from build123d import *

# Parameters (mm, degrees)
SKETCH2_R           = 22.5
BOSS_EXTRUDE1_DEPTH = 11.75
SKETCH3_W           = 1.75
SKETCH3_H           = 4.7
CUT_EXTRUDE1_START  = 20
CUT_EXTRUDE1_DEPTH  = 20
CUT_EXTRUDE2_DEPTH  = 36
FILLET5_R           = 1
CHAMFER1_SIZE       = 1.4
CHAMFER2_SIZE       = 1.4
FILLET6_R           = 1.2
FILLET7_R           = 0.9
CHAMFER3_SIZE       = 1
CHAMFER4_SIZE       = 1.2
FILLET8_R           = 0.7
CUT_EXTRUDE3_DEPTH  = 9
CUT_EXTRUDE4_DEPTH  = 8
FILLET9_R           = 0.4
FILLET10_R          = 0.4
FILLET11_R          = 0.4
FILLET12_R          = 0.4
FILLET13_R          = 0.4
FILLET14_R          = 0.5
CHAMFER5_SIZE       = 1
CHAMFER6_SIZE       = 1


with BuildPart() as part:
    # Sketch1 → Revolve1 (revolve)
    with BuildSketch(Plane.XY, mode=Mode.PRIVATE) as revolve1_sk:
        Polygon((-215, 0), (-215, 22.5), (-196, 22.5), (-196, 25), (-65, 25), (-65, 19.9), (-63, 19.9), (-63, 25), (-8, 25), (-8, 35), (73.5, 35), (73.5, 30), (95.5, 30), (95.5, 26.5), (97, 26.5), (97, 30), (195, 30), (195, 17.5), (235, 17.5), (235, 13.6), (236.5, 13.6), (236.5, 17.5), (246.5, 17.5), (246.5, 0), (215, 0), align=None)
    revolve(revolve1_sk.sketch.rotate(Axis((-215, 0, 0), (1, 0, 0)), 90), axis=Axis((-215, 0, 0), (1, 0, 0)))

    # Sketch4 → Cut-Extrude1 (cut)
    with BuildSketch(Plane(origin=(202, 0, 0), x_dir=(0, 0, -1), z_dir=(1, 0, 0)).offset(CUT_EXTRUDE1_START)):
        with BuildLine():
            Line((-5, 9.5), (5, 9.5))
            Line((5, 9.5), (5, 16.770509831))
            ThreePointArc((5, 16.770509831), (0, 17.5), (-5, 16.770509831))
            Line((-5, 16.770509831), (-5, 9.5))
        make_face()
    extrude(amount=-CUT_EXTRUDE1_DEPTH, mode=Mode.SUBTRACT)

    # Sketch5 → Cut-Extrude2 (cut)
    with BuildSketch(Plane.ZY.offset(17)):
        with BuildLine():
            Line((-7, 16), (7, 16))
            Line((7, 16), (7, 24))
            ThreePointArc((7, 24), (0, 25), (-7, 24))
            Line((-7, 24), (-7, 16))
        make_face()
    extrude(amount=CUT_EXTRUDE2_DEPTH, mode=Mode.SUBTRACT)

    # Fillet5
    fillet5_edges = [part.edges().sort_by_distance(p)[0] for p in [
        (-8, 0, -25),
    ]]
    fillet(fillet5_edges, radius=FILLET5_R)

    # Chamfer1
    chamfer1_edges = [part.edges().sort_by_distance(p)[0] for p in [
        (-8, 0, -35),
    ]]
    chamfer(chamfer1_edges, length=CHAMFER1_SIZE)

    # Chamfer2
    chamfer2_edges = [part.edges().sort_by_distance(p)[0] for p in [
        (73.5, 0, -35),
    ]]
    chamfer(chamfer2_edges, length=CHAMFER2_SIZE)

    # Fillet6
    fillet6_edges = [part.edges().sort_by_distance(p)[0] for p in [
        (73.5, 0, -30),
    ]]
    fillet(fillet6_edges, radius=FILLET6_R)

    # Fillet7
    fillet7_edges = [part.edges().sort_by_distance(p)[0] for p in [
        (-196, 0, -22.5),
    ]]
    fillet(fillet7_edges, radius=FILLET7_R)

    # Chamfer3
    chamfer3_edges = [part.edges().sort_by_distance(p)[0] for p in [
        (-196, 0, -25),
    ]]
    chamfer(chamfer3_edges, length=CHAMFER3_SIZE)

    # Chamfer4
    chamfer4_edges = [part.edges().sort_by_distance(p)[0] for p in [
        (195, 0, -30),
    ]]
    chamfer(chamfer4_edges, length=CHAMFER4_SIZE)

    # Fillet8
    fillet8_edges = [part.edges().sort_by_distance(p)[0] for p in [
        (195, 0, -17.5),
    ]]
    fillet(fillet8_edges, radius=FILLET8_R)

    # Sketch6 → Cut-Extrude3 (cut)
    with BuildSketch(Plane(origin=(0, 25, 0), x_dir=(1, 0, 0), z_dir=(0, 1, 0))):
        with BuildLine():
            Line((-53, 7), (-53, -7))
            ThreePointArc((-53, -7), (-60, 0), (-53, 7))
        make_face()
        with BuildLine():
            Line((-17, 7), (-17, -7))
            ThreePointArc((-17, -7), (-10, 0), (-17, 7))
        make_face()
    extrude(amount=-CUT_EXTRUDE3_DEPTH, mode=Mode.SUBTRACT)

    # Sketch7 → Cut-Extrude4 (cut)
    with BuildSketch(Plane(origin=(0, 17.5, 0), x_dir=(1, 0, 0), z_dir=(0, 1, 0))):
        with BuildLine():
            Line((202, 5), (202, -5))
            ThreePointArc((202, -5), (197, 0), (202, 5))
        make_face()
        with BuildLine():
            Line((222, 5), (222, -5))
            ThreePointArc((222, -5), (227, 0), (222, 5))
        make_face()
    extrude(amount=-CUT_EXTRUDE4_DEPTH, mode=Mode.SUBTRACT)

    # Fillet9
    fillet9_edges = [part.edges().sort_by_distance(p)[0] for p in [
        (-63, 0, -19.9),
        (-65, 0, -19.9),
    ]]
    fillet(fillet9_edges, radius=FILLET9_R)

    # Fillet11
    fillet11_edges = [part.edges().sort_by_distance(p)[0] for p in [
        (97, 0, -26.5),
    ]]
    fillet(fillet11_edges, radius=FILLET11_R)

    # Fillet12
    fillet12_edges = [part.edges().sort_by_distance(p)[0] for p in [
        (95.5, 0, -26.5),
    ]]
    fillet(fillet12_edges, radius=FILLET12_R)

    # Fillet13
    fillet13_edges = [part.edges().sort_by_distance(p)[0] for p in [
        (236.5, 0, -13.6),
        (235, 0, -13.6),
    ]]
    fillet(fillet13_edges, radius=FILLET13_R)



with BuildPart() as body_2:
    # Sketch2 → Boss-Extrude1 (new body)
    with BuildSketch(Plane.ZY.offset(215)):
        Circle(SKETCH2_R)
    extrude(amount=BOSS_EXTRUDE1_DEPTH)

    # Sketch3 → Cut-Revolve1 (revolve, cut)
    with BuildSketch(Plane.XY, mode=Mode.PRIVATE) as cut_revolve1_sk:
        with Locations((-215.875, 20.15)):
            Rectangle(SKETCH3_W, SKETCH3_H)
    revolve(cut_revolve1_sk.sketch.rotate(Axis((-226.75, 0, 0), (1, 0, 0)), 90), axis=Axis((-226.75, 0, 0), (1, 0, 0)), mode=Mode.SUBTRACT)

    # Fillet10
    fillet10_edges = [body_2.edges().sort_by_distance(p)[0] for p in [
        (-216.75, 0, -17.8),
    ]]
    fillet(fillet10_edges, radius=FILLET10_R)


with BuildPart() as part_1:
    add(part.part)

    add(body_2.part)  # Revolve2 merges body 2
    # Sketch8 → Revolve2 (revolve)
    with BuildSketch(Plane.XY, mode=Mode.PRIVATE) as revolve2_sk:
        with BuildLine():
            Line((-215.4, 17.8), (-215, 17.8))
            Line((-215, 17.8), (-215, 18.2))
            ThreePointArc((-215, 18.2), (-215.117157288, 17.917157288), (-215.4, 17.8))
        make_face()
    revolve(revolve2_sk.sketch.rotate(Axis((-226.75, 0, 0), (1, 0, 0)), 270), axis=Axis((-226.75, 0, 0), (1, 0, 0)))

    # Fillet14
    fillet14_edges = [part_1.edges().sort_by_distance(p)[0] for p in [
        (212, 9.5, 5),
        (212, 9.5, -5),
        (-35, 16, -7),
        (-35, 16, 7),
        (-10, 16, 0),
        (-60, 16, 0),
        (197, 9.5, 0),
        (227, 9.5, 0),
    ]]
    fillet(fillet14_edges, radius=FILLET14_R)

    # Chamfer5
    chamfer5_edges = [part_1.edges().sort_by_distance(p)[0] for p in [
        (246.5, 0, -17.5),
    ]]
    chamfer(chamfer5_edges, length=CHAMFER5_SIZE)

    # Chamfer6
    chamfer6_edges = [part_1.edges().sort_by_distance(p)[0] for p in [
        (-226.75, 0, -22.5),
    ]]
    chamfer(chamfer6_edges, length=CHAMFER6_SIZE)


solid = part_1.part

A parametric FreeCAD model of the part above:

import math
import FreeCAD as App
import Part
import Sketcher
Q = App.Units.Quantity


def edges_at(feature, points):
    """Names of the edges that pass closest to the given points."""
    edges = feature.Shape.Edges
    near = lambda p: min(range(len(edges)), key=lambda i: edges[i].distToShape(Part.Vertex(*p))[0])
    return sorted({f"Edge{near(p) + 1}" for p in points})

doc = App.newDocument("Part")
body = doc.addObject("PartDesign::Body", "Body")

sketch1 = body.newObject("Sketcher::SketchObject", "Sketch")
sketch1.AttachmentSupport = (doc.getObject("XY_Plane"), [""])
sketch1.MapMode = "FlatFace"
sketch1.addGeometry(Part.LineSegment(App.Vector(-215, 22.5, 0), App.Vector(-215, 0, 0)), False)
sketch1.addGeometry(Part.LineSegment(App.Vector(-215, 0, 0), App.Vector(246.5, 0, 0)), False)
sketch1.addGeometry(Part.LineSegment(App.Vector(246.5, 0, 0), App.Vector(246.5, 17.5, 0)), False)
sketch1.addGeometry(Part.LineSegment(App.Vector(246.5, 17.5, 0), App.Vector(236.5, 17.5, 0)), False)
sketch1.addGeometry(Part.LineSegment(App.Vector(236.5, 17.5, 0), App.Vector(236.5, 13.6, 0)), False)
sketch1.addGeometry(Part.LineSegment(App.Vector(236.5, 13.6, 0), App.Vector(235, 13.6, 0)), False)
sketch1.addGeometry(Part.LineSegment(App.Vector(235, 13.6, 0), App.Vector(235, 17.5, 0)), False)
sketch1.addGeometry(Part.LineSegment(App.Vector(235, 17.5, 0), App.Vector(195, 17.5, 0)), False)
sketch1.addGeometry(Part.LineSegment(App.Vector(195, 17.5, 0), App.Vector(195, 30, 0)), False)
sketch1.addGeometry(Part.LineSegment(App.Vector(195, 30, 0), App.Vector(97, 30, 0)), False)
sketch1.addGeometry(Part.LineSegment(App.Vector(97, 30, 0), App.Vector(97, 26.5, 0)), False)
sketch1.addGeometry(Part.LineSegment(App.Vector(97, 26.5, 0), App.Vector(95.5, 26.5, 0)), False)
sketch1.addGeometry(Part.LineSegment(App.Vector(95.5, 26.5, 0), App.Vector(95.5, 30, 0)), False)
sketch1.addGeometry(Part.LineSegment(App.Vector(95.5, 30, 0), App.Vector(73.5, 30, 0)), False)
sketch1.addGeometry(Part.LineSegment(App.Vector(73.5, 30, 0), App.Vector(73.5, 35, 0)), False)
sketch1.addGeometry(Part.LineSegment(App.Vector(73.5, 35, 0), App.Vector(-8, 35, 0)), False)
sketch1.addGeometry(Part.LineSegment(App.Vector(-8, 35, 0), App.Vector(-8, 25, 0)), False)
sketch1.addGeometry(Part.LineSegment(App.Vector(-8, 25, 0), App.Vector(-63, 25, 0)), False)
sketch1.addGeometry(Part.LineSegment(App.Vector(-63, 25, 0), App.Vector(-63, 19.9, 0)), False)
sketch1.addGeometry(Part.LineSegment(App.Vector(-63, 19.9, 0), App.Vector(-65, 19.9, 0)), False)
sketch1.addGeometry(Part.LineSegment(App.Vector(-65, 19.9, 0), App.Vector(-65, 25, 0)), False)
sketch1.addGeometry(Part.LineSegment(App.Vector(-65, 25, 0), App.Vector(-196, 25, 0)), False)
sketch1.addGeometry(Part.LineSegment(App.Vector(-196, 25, 0), App.Vector(-196, 22.5, 0)), False)
sketch1.addGeometry(Part.LineSegment(App.Vector(-196, 22.5, 0), App.Vector(-215, 22.5, 0)), False)
sketch1.addConstraint(Sketcher.Constraint("Coincident", 0, 2, 1, 1))
sketch1.addConstraint(Sketcher.Constraint("Coincident", 1, 2, 2, 1))
sketch1.addConstraint(Sketcher.Constraint("Coincident", 2, 2, 3, 1))
sketch1.addConstraint(Sketcher.Constraint("Coincident", 3, 2, 4, 1))
sketch1.addConstraint(Sketcher.Constraint("Coincident", 4, 2, 5, 1))
sketch1.addConstraint(Sketcher.Constraint("Coincident", 5, 2, 6, 1))
sketch1.addConstraint(Sketcher.Constraint("Coincident", 6, 2, 7, 1))
sketch1.addConstraint(Sketcher.Constraint("Coincident", 7, 2, 8, 1))
sketch1.addConstraint(Sketcher.Constraint("Coincident", 8, 2, 9, 1))
sketch1.addConstraint(Sketcher.Constraint("Coincident", 9, 2, 10, 1))
sketch1.addConstraint(Sketcher.Constraint("Coincident", 10, 2, 11, 1))
sketch1.addConstraint(Sketcher.Constraint("Coincident", 11, 2, 12, 1))
sketch1.addConstraint(Sketcher.Constraint("Coincident", 12, 2, 13, 1))
sketch1.addConstraint(Sketcher.Constraint("Coincident", 13, 2, 14, 1))
sketch1.addConstraint(Sketcher.Constraint("Coincident", 14, 2, 15, 1))
sketch1.addConstraint(Sketcher.Constraint("Coincident", 15, 2, 16, 1))
sketch1.addConstraint(Sketcher.Constraint("Coincident", 16, 2, 17, 1))
sketch1.addConstraint(Sketcher.Constraint("Coincident", 17, 2, 18, 1))
sketch1.addConstraint(Sketcher.Constraint("Coincident", 18, 2, 19, 1))
sketch1.addConstraint(Sketcher.Constraint("Coincident", 19, 2, 20, 1))
sketch1.addConstraint(Sketcher.Constraint("Coincident", 20, 2, 21, 1))
sketch1.addConstraint(Sketcher.Constraint("Coincident", 21, 2, 22, 1))
sketch1.addConstraint(Sketcher.Constraint("Coincident", 22, 2, 23, 1))
sketch1.addConstraint(Sketcher.Constraint("Coincident", 23, 2, 0, 1))
sketch1.addConstraint(Sketcher.Constraint("Vertical", 0))
sketch1.addConstraint(Sketcher.Constraint("Horizontal", 1))
sketch1.addConstraint(Sketcher.Constraint("Vertical", 2))
sketch1.addConstraint(Sketcher.Constraint("Horizontal", 3))
sketch1.addConstraint(Sketcher.Constraint("Vertical", 4))
sketch1.addConstraint(Sketcher.Constraint("Horizontal", 5))
sketch1.addConstraint(Sketcher.Constraint("Vertical", 6))
sketch1.addConstraint(Sketcher.Constraint("Horizontal", 7))
sketch1.addConstraint(Sketcher.Constraint("Vertical", 8))
sketch1.addConstraint(Sketcher.Constraint("Horizontal", 9))
sketch1.addConstraint(Sketcher.Constraint("Vertical", 10))
sketch1.addConstraint(Sketcher.Constraint("Horizontal", 11))
sketch1.addConstraint(Sketcher.Constraint("Vertical", 12))
sketch1.addConstraint(Sketcher.Constraint("Horizontal", 13))
sketch1.addConstraint(Sketcher.Constraint("Vertical", 14))
sketch1.addConstraint(Sketcher.Constraint("Horizontal", 15))
sketch1.addConstraint(Sketcher.Constraint("Vertical", 16))
sketch1.addConstraint(Sketcher.Constraint("Horizontal", 17))
sketch1.addConstraint(Sketcher.Constraint("Vertical", 18))
sketch1.addConstraint(Sketcher.Constraint("Horizontal", 19))
sketch1.addConstraint(Sketcher.Constraint("Vertical", 20))
sketch1.addConstraint(Sketcher.Constraint("Horizontal", 21))
sketch1.addConstraint(Sketcher.Constraint("Vertical", 22))
sketch1.addConstraint(Sketcher.Constraint("Horizontal", 23))
sketch1.addConstraint(Sketcher.Constraint("PointOnObject", 0, 2, -1))
sketch1.addConstraint(Sketcher.Constraint("Horizontal", 3, 2, 6, 2))
sketch1.addConstraint(Sketcher.Constraint("Horizontal", 9, 2, 12, 2))
sketch1.addConstraint(Sketcher.Constraint("Horizontal", 17, 2, 20, 2))
sketch1.addConstraint(Sketcher.Constraint("Equal", 5, 11))
sketch1.addConstraint(Sketcher.Constraint("Equal", 3, 16))
sketch1.addConstraint(Sketcher.Constraint("DistanceX", 3, 2, 3, 1, Q("10 mm")))
sketch1.addConstraint(Sketcher.Constraint("DistanceX", 7, 2, 7, 1, Q("40 mm")))
sketch1.addConstraint(Sketcher.Constraint("DistanceX", 9, 2, 9, 1, Q("98 mm")))
sketch1.addConstraint(Sketcher.Constraint("DistanceX", 13, 2, 13, 1, Q("22 mm")))
sketch1.addConstraint(Sketcher.Constraint("DistanceX", 17, 2, 17, 1, Q("55 mm")))
sketch1.addConstraint(Sketcher.Constraint("DistanceX", 19, 2, 19, 1, Q("2 mm")))
sketch1.addConstraint(Sketcher.Constraint("DistanceX", 21, 2, 21, 1, Q("131 mm")))
sketch1.addConstraint(Sketcher.Constraint("DistanceX", 23, 2, 23, 1, Q("19 mm")))
sketch1.addConstraint(Sketcher.Constraint("DistanceY", 14, 1, 14, 2, Q("5 mm")))
sketch1.addConstraint(Sketcher.Constraint("DistanceX", 1, 1, 1, 2, Q("461.5 mm")))
sketch1.addConstraint(Sketcher.Constraint("DistanceX", 5, 2, 5, 1, Q("1.5 mm")))
sketch1.addConstraint(Sketcher.Constraint("DistanceY", 0, 2, 0, 1, Q("22.5 mm")))
sketch1.addConstraint(Sketcher.Constraint("DistanceY", 2, 1, 2, 2, Q("17.5 mm")))
sketch1.addConstraint(Sketcher.Constraint("DistanceY", 4, 2, 4, 1, Q("3.9 mm")))
sketch1.addConstraint(Sketcher.Constraint("DistanceY", 8, 1, 8, 2, Q("12.5 mm")))
sketch1.addConstraint(Sketcher.Constraint("DistanceY", 10, 2, 10, 1, Q("3.5 mm")))
sketch1.addConstraint(Sketcher.Constraint("DistanceY", 18, 2, 18, 1, Q("5.1 mm")))
sketch1.addConstraint(Sketcher.Constraint("DistanceX", 0, 2, -1, 1, Q("215 mm")))
revolution = body.newObject("PartDesign::Revolution", "Revolution")
revolution.Profile = sketch1
revolution.ReferenceAxis = (sketch1, ["H_Axis"])
revolution.Angle = 360

sketch2 = body.newObject("Sketcher::SketchObject", "Sketch001")
sketch2.AttachmentSupport = (doc.getObject("YZ_Plane"), [""])
sketch2.MapMode = "FlatFace"
sketch2.AttachmentOffset = App.Placement(App.Vector(0, 0, 222), App.Rotation())
sketch2.addGeometry(Part.LineSegment(App.Vector(9.5, 5, 0), App.Vector(9.5, -5, 0)), False)
sketch2.addGeometry(Part.LineSegment(App.Vector(9.5, -5, 0), App.Vector(16.77051, -5, 0)), False)
sketch2.addGeometry(Part.ArcOfCircle(Part.Circle(App.Vector(0, 0, 0), App.Vector(0, 0, 1), 17.5), math.radians(-16.60155), math.radians(16.60155)), False)
sketch2.addGeometry(Part.LineSegment(App.Vector(16.77051, 5, 0), App.Vector(9.5, 5, 0)), False)
sketch2.addConstraint(Sketcher.Constraint("Coincident", 0, 2, 1, 1))
sketch2.addConstraint(Sketcher.Constraint("Coincident", 1, 2, 2, 1))
sketch2.addConstraint(Sketcher.Constraint("Coincident", 2, 2, 3, 1))
sketch2.addConstraint(Sketcher.Constraint("Coincident", 3, 2, 0, 1))
sketch2.addConstraint(Sketcher.Constraint("Vertical", 0))
sketch2.addConstraint(Sketcher.Constraint("Horizontal", 1))
sketch2.addConstraint(Sketcher.Constraint("Horizontal", 3))
sketch2.addConstraint(Sketcher.Constraint("Coincident", 2, 3, -1, 1))
sketch2.addConstraint(Sketcher.Constraint("Vertical", 1, 2, 2, 2))
sketch2.addConstraint(Sketcher.Constraint("Radius", 2, Q("17.5 mm")))
sketch2.addConstraint(Sketcher.Constraint("DistanceY", 0, 2, 0, 1, Q("10 mm")))
sketch2.addConstraint(Sketcher.Constraint("DistanceX", -1, 1, 0, 2, Q("9.5 mm")))
pocket1 = body.newObject("PartDesign::Pocket", "Pocket")
pocket1.Profile = sketch2
pocket1.Length = 20

sketch3 = body.newObject("Sketcher::SketchObject", "Sketch002")
sketch3.AttachmentSupport = (doc.getObject("YZ_Plane"), [""])
sketch3.MapMode = "FlatFace"
sketch3.AttachmentOffset = App.Placement(App.Vector(0, 0, -17), App.Rotation())
sketch3.addGeometry(Part.LineSegment(App.Vector(16, -7, 0), App.Vector(16, 7, 0)), False)
sketch3.addGeometry(Part.LineSegment(App.Vector(16, 7, 0), App.Vector(24, 7, 0)), False)
sketch3.addGeometry(Part.ArcOfCircle(Part.Circle(App.Vector(0, 0, 0), App.Vector(0, 0, 1), 25), math.radians(-16.260205), math.radians(16.260205)), False)
sketch3.addGeometry(Part.LineSegment(App.Vector(24, -7, 0), App.Vector(16, -7, 0)), False)
sketch3.addConstraint(Sketcher.Constraint("Coincident", 0, 2, 1, 1))
sketch3.addConstraint(Sketcher.Constraint("Coincident", 1, 2, 2, 2))
sketch3.addConstraint(Sketcher.Constraint("Coincident", 2, 1, 3, 1))
sketch3.addConstraint(Sketcher.Constraint("Coincident", 3, 2, 0, 1))
sketch3.addConstraint(Sketcher.Constraint("Vertical", 0))
sketch3.addConstraint(Sketcher.Constraint("Horizontal", 1))
sketch3.addConstraint(Sketcher.Constraint("Horizontal", 3))
sketch3.addConstraint(Sketcher.Constraint("Coincident", 2, 3, -1, 1))
sketch3.addConstraint(Sketcher.Constraint("Vertical", 1, 2, 2, 1))
sketch3.addConstraint(Sketcher.Constraint("Radius", 2, Q("25 mm")))
sketch3.addConstraint(Sketcher.Constraint("DistanceX", 1, 1, 1, 2, Q("8 mm")))
sketch3.addConstraint(Sketcher.Constraint("DistanceY", 0, 1, 0, 2, Q("14 mm")))
pocket2 = body.newObject("PartDesign::Pocket", "Pocket001")
pocket2.Profile = sketch3
pocket2.Length = 36
doc.recompute()

fillet = body.newObject("PartDesign::Fillet", "Fillet")
fillet.Base = (pocket2, edges_at(pocket2, [(-8, 0, -25)]))
fillet.Radius = 1
doc.recompute()

chamfer = body.newObject("PartDesign::Chamfer", "Chamfer")
chamfer.Base = (fillet, edges_at(fillet, [(-8, 0, -35)]))
chamfer.Size = 1.4
doc.recompute()

chamfer2 = body.newObject("PartDesign::Chamfer", "Chamfer001")
chamfer2.Base = (chamfer, edges_at(chamfer, [(73.5, 0, -35)]))
chamfer2.Size = 1.4
doc.recompute()

fillet2 = body.newObject("PartDesign::Fillet", "Fillet001")
fillet2.Base = (chamfer2, edges_at(chamfer2, [(73.5, 0, -30)]))
fillet2.Radius = 1.2
doc.recompute()

fillet3 = body.newObject("PartDesign::Fillet", "Fillet002")
fillet3.Base = (fillet2, edges_at(fillet2, [(-196, 0, -22.5)]))
fillet3.Radius = 0.9
doc.recompute()

chamfer3 = body.newObject("PartDesign::Chamfer", "Chamfer002")
chamfer3.Base = (fillet3, edges_at(fillet3, [(-196, 0, -25)]))
chamfer3.Size = 1
doc.recompute()

chamfer4 = body.newObject("PartDesign::Chamfer", "Chamfer003")
chamfer4.Base = (chamfer3, edges_at(chamfer3, [(195, 0, -30)]))
chamfer4.Size = 1.2
doc.recompute()

fillet4 = body.newObject("PartDesign::Fillet", "Fillet003")
fillet4.Base = (chamfer4, edges_at(chamfer4, [(195, 0, -17.5)]))
fillet4.Radius = 0.7

sketch4 = body.newObject("Sketcher::SketchObject", "Sketch003")
sketch4.AttachmentSupport = (doc.getObject("XZ_Plane"), [""])
sketch4.MapMode = "FlatFace"
sketch4.AttachmentOffset = App.Placement(App.Vector(0, 0, -25), App.Rotation())
sketch4.addGeometry(Part.LineSegment(App.Vector(-53, 7, 0), App.Vector(-53, -7, 0)), False)
sketch4.addGeometry(Part.ArcOfCircle(Part.Circle(App.Vector(-53, 0, 0), App.Vector(0, 0, 1), 7), math.radians(90), math.radians(270)), False)
sketch4.addGeometry(Part.LineSegment(App.Vector(-17, -7, 0), App.Vector(-17, 7, 0)), False)
sketch4.addGeometry(Part.ArcOfCircle(Part.Circle(App.Vector(-17, 0, 0), App.Vector(0, 0, 1), 7), math.radians(-90), math.radians(90)), False)
sketch4.addConstraint(Sketcher.Constraint("Coincident", 0, 1, 1, 1))
sketch4.addConstraint(Sketcher.Constraint("Coincident", 1, 2, 0, 2))
sketch4.addConstraint(Sketcher.Constraint("Coincident", 2, 1, 3, 1))
sketch4.addConstraint(Sketcher.Constraint("Coincident", 3, 2, 2, 2))
sketch4.addConstraint(Sketcher.Constraint("Vertical", 0))
sketch4.addConstraint(Sketcher.Constraint("Vertical", 2))
sketch4.addConstraint(Sketcher.Constraint("Equal", 1, 3))
sketch4.addConstraint(Sketcher.Constraint("PointOnObject", 1, 3, -1))
sketch4.addConstraint(Sketcher.Constraint("PointOnObject", 3, 3, -1))
sketch4.addConstraint(Sketcher.Constraint("Vertical", 1, 3, 0, 1))
sketch4.addConstraint(Sketcher.Constraint("Vertical", 3, 3, 2, 1))
sketch4.addConstraint(Sketcher.Constraint("Radius", 1, Q("7 mm")))
sketch4.addConstraint(Sketcher.Constraint("DistanceX", 1, 3, -1, 1, Q("53 mm")))
sketch4.addConstraint(Sketcher.Constraint("DistanceX", 3, 3, -1, 1, Q("17 mm")))
pocket3 = body.newObject("PartDesign::Pocket", "Pocket002")
pocket3.Profile = sketch4
pocket3.Length = 9
pocket3.Reversed = True

sketch5 = body.newObject("Sketcher::SketchObject", "Sketch004")
sketch5.AttachmentSupport = (doc.getObject("XZ_Plane"), [""])
sketch5.MapMode = "FlatFace"
sketch5.AttachmentOffset = App.Placement(App.Vector(0, 0, -17.5), App.Rotation())
sketch5.addGeometry(Part.LineSegment(App.Vector(202, 5, 0), App.Vector(202, -5, 0)), False)
sketch5.addGeometry(Part.ArcOfCircle(Part.Circle(App.Vector(202, 0, 0), App.Vector(0, 0, 1), 5), math.radians(90), math.radians(270)), False)
sketch5.addGeometry(Part.LineSegment(App.Vector(222, -5, 0), App.Vector(222, 5, 0)), False)
sketch5.addGeometry(Part.ArcOfCircle(Part.Circle(App.Vector(222, 0, 0), App.Vector(0, 0, 1), 5), math.radians(-90), math.radians(90)), False)
sketch5.addConstraint(Sketcher.Constraint("Coincident", 0, 1, 1, 1))
sketch5.addConstraint(Sketcher.Constraint("Coincident", 1, 2, 0, 2))
sketch5.addConstraint(Sketcher.Constraint("Coincident", 2, 1, 3, 1))
sketch5.addConstraint(Sketcher.Constraint("Coincident", 3, 2, 2, 2))
sketch5.addConstraint(Sketcher.Constraint("Vertical", 0))
sketch5.addConstraint(Sketcher.Constraint("Vertical", 2))
sketch5.addConstraint(Sketcher.Constraint("Equal", 1, 3))
sketch5.addConstraint(Sketcher.Constraint("PointOnObject", 1, 3, -1))
sketch5.addConstraint(Sketcher.Constraint("PointOnObject", 3, 3, -1))
sketch5.addConstraint(Sketcher.Constraint("Vertical", 1, 3, 0, 1))
sketch5.addConstraint(Sketcher.Constraint("Vertical", 3, 3, 2, 1))
sketch5.addConstraint(Sketcher.Constraint("Radius", 1, Q("5 mm")))
sketch5.addConstraint(Sketcher.Constraint("DistanceX", -1, 1, 1, 3, Q("202 mm")))
sketch5.addConstraint(Sketcher.Constraint("DistanceX", -1, 1, 3, 3, Q("222 mm")))
pocket4 = body.newObject("PartDesign::Pocket", "Pocket003")
pocket4.Profile = sketch5
pocket4.Length = 8
pocket4.Reversed = True
doc.recompute()

fillet5 = body.newObject("PartDesign::Fillet", "Fillet004")
fillet5.Base = (pocket4, edges_at(pocket4, [(-63, 0, -19.9), (-65, 0, -19.9)]))
fillet5.Radius = 0.4
doc.recompute()

fillet6 = body.newObject("PartDesign::Fillet", "Fillet005")
fillet6.Base = (fillet5, edges_at(fillet5, [(97, 0, -26.5)]))
fillet6.Radius = 0.4
doc.recompute()

fillet7 = body.newObject("PartDesign::Fillet", "Fillet006")
fillet7.Base = (fillet6, edges_at(fillet6, [(95.5, 0, -26.5)]))
fillet7.Radius = 0.4
doc.recompute()

fillet8 = body.newObject("PartDesign::Fillet", "Fillet007")
fillet8.Base = (fillet7, edges_at(fillet7, [(236.5, 0, -13.6), (235, 0, -13.6)]))
fillet8.Radius = 0.4
body2 = doc.addObject("PartDesign::Body", "Body001")

sketch6 = body2.newObject("Sketcher::SketchObject", "Sketch005")
sketch6.AttachmentSupport = (doc.getObject("YZ_Plane001"), [""])
sketch6.MapMode = "FlatFace"
sketch6.AttachmentOffset = App.Placement(App.Vector(0, 0, -215), App.Rotation())
sketch6.addGeometry(Part.Circle(App.Vector(0, 0, 0), App.Vector(0, 0, 1), 22.5), False)
sketch6.addConstraint(Sketcher.Constraint("Coincident", 0, 3, -1, 1))
sketch6.addConstraint(Sketcher.Constraint("Diameter", 0, Q("45 mm")))
pad1 = body2.newObject("PartDesign::Pad", "Pad")
pad1.Profile = sketch6
pad1.Length = 11.75
pad1.Reversed = True

sketch7 = body2.newObject("Sketcher::SketchObject", "Sketch006")
sketch7.AttachmentSupport = (doc.getObject("XY_Plane001"), [""])
sketch7.MapMode = "FlatFace"
sketch7.addGeometry(Part.LineSegment(App.Vector(-216.75, 22.5, 0), App.Vector(-216.75, 17.8, 0)), False)
sketch7.addGeometry(Part.LineSegment(App.Vector(-216.75, 17.8, 0), App.Vector(-215, 17.8, 0)), False)
sketch7.addGeometry(Part.LineSegment(App.Vector(-215, 17.8, 0), App.Vector(-215, 22.5, 0)), False)
sketch7.addGeometry(Part.LineSegment(App.Vector(-215, 22.5, 0), App.Vector(-216.75, 22.5, 0)), False)
sketch7.addConstraint(Sketcher.Constraint("Coincident", 0, 2, 1, 1))
sketch7.addConstraint(Sketcher.Constraint("Coincident", 1, 2, 2, 1))
sketch7.addConstraint(Sketcher.Constraint("Coincident", 2, 2, 3, 1))
sketch7.addConstraint(Sketcher.Constraint("Coincident", 3, 2, 0, 1))
sketch7.addConstraint(Sketcher.Constraint("Vertical", 0))
sketch7.addConstraint(Sketcher.Constraint("Horizontal", 1))
sketch7.addConstraint(Sketcher.Constraint("Vertical", 2))
sketch7.addConstraint(Sketcher.Constraint("Horizontal", 3))
sketch7.addConstraint(Sketcher.Constraint("DistanceY", 0, 2, 0, 1, Q("4.7 mm")))
sketch7.addConstraint(Sketcher.Constraint("DistanceX", 1, 2, -1, 1, Q("215 mm")))
sketch7.addConstraint(Sketcher.Constraint("DistanceX", 1, 1, 1, 2, Q("1.75 mm")))
sketch7.addConstraint(Sketcher.Constraint("DistanceY", -1, 1, 0, 2, Q("17.8 mm")))
groove = body2.newObject("PartDesign::Groove", "Groove")
groove.Profile = sketch7
groove.ReferenceAxis = (sketch7, ["H_Axis"])
groove.Angle = 360
doc.recompute()

fillet9 = body2.newObject("PartDesign::Fillet", "Fillet008")
fillet9.Base = (groove, edges_at(groove, [(-216.75, 0, -17.8)]))
fillet9.Radius = 0.4
doc.recompute()

boolean = body.newObject("PartDesign::Boolean", "Boolean")
boolean.Type = "Fuse"
boolean.addObjects([body2])

sketch8 = body.newObject("Sketcher::SketchObject", "Sketch007")
sketch8.AttachmentSupport = (doc.getObject("XY_Plane"), [""])
sketch8.MapMode = "FlatFace"
sketch8.addGeometry(Part.LineSegment(App.Vector(-215.4, 17.8, 0), App.Vector(-215, 17.8, 0)), False)
sketch8.addGeometry(Part.LineSegment(App.Vector(-215, 17.8, 0), App.Vector(-215, 18.2, 0)), False)
sketch8.addGeometry(Part.ArcOfCircle(Part.Circle(App.Vector(-215.4, 18.2, 0), App.Vector(0, 0, 1), 0.4), math.radians(-90), math.radians(0)), False)
sketch8.addConstraint(Sketcher.Constraint("Coincident", 0, 2, 1, 1))
sketch8.addConstraint(Sketcher.Constraint("Tangent", 1, 2, 2, 2))
sketch8.addConstraint(Sketcher.Constraint("Tangent", 2, 1, 0, 1))
sketch8.addConstraint(Sketcher.Constraint("Horizontal", 0))
sketch8.addConstraint(Sketcher.Constraint("Vertical", 1))
sketch8.addConstraint(Sketcher.Constraint("Radius", 2, Q("0.4 mm")))
sketch8.addConstraint(Sketcher.Constraint("DistanceX", 0, 2, -1, 1, Q("215 mm")))
sketch8.addConstraint(Sketcher.Constraint("DistanceY", -1, 1, 2, 3, Q("18.2 mm")))
revolution2 = body.newObject("PartDesign::Revolution", "Revolution001")
revolution2.Profile = sketch8
revolution2.ReferenceAxis = (sketch8, ["H_Axis"])
revolution2.Angle = 360
doc.recompute()

fillet10 = body.newObject("PartDesign::Fillet", "Fillet009")
fillet10.Base = (revolution2, edges_at(revolution2, [
    (212, 9.5, 5),
    (212, 9.5, -5),
    (-35, 16, -7),
    (-35, 16, 7),
    (-10, 16, 0),
    (-60, 16, 0),
    (197, 9.5, 0),
    (227, 9.5, 0),
]))
fillet10.Radius = 0.5
doc.recompute()

chamfer5 = body.newObject("PartDesign::Chamfer", "Chamfer004")
chamfer5.Base = (fillet10, edges_at(fillet10, [(246.5, 0, -17.5)]))
chamfer5.Size = 1
doc.recompute()

chamfer6 = body.newObject("PartDesign::Chamfer", "Chamfer005")
chamfer6.Base = (chamfer5, edges_at(chamfer5, [(-226.75, 0, -22.5)]))
chamfer6.Size = 1

doc.recompute()
